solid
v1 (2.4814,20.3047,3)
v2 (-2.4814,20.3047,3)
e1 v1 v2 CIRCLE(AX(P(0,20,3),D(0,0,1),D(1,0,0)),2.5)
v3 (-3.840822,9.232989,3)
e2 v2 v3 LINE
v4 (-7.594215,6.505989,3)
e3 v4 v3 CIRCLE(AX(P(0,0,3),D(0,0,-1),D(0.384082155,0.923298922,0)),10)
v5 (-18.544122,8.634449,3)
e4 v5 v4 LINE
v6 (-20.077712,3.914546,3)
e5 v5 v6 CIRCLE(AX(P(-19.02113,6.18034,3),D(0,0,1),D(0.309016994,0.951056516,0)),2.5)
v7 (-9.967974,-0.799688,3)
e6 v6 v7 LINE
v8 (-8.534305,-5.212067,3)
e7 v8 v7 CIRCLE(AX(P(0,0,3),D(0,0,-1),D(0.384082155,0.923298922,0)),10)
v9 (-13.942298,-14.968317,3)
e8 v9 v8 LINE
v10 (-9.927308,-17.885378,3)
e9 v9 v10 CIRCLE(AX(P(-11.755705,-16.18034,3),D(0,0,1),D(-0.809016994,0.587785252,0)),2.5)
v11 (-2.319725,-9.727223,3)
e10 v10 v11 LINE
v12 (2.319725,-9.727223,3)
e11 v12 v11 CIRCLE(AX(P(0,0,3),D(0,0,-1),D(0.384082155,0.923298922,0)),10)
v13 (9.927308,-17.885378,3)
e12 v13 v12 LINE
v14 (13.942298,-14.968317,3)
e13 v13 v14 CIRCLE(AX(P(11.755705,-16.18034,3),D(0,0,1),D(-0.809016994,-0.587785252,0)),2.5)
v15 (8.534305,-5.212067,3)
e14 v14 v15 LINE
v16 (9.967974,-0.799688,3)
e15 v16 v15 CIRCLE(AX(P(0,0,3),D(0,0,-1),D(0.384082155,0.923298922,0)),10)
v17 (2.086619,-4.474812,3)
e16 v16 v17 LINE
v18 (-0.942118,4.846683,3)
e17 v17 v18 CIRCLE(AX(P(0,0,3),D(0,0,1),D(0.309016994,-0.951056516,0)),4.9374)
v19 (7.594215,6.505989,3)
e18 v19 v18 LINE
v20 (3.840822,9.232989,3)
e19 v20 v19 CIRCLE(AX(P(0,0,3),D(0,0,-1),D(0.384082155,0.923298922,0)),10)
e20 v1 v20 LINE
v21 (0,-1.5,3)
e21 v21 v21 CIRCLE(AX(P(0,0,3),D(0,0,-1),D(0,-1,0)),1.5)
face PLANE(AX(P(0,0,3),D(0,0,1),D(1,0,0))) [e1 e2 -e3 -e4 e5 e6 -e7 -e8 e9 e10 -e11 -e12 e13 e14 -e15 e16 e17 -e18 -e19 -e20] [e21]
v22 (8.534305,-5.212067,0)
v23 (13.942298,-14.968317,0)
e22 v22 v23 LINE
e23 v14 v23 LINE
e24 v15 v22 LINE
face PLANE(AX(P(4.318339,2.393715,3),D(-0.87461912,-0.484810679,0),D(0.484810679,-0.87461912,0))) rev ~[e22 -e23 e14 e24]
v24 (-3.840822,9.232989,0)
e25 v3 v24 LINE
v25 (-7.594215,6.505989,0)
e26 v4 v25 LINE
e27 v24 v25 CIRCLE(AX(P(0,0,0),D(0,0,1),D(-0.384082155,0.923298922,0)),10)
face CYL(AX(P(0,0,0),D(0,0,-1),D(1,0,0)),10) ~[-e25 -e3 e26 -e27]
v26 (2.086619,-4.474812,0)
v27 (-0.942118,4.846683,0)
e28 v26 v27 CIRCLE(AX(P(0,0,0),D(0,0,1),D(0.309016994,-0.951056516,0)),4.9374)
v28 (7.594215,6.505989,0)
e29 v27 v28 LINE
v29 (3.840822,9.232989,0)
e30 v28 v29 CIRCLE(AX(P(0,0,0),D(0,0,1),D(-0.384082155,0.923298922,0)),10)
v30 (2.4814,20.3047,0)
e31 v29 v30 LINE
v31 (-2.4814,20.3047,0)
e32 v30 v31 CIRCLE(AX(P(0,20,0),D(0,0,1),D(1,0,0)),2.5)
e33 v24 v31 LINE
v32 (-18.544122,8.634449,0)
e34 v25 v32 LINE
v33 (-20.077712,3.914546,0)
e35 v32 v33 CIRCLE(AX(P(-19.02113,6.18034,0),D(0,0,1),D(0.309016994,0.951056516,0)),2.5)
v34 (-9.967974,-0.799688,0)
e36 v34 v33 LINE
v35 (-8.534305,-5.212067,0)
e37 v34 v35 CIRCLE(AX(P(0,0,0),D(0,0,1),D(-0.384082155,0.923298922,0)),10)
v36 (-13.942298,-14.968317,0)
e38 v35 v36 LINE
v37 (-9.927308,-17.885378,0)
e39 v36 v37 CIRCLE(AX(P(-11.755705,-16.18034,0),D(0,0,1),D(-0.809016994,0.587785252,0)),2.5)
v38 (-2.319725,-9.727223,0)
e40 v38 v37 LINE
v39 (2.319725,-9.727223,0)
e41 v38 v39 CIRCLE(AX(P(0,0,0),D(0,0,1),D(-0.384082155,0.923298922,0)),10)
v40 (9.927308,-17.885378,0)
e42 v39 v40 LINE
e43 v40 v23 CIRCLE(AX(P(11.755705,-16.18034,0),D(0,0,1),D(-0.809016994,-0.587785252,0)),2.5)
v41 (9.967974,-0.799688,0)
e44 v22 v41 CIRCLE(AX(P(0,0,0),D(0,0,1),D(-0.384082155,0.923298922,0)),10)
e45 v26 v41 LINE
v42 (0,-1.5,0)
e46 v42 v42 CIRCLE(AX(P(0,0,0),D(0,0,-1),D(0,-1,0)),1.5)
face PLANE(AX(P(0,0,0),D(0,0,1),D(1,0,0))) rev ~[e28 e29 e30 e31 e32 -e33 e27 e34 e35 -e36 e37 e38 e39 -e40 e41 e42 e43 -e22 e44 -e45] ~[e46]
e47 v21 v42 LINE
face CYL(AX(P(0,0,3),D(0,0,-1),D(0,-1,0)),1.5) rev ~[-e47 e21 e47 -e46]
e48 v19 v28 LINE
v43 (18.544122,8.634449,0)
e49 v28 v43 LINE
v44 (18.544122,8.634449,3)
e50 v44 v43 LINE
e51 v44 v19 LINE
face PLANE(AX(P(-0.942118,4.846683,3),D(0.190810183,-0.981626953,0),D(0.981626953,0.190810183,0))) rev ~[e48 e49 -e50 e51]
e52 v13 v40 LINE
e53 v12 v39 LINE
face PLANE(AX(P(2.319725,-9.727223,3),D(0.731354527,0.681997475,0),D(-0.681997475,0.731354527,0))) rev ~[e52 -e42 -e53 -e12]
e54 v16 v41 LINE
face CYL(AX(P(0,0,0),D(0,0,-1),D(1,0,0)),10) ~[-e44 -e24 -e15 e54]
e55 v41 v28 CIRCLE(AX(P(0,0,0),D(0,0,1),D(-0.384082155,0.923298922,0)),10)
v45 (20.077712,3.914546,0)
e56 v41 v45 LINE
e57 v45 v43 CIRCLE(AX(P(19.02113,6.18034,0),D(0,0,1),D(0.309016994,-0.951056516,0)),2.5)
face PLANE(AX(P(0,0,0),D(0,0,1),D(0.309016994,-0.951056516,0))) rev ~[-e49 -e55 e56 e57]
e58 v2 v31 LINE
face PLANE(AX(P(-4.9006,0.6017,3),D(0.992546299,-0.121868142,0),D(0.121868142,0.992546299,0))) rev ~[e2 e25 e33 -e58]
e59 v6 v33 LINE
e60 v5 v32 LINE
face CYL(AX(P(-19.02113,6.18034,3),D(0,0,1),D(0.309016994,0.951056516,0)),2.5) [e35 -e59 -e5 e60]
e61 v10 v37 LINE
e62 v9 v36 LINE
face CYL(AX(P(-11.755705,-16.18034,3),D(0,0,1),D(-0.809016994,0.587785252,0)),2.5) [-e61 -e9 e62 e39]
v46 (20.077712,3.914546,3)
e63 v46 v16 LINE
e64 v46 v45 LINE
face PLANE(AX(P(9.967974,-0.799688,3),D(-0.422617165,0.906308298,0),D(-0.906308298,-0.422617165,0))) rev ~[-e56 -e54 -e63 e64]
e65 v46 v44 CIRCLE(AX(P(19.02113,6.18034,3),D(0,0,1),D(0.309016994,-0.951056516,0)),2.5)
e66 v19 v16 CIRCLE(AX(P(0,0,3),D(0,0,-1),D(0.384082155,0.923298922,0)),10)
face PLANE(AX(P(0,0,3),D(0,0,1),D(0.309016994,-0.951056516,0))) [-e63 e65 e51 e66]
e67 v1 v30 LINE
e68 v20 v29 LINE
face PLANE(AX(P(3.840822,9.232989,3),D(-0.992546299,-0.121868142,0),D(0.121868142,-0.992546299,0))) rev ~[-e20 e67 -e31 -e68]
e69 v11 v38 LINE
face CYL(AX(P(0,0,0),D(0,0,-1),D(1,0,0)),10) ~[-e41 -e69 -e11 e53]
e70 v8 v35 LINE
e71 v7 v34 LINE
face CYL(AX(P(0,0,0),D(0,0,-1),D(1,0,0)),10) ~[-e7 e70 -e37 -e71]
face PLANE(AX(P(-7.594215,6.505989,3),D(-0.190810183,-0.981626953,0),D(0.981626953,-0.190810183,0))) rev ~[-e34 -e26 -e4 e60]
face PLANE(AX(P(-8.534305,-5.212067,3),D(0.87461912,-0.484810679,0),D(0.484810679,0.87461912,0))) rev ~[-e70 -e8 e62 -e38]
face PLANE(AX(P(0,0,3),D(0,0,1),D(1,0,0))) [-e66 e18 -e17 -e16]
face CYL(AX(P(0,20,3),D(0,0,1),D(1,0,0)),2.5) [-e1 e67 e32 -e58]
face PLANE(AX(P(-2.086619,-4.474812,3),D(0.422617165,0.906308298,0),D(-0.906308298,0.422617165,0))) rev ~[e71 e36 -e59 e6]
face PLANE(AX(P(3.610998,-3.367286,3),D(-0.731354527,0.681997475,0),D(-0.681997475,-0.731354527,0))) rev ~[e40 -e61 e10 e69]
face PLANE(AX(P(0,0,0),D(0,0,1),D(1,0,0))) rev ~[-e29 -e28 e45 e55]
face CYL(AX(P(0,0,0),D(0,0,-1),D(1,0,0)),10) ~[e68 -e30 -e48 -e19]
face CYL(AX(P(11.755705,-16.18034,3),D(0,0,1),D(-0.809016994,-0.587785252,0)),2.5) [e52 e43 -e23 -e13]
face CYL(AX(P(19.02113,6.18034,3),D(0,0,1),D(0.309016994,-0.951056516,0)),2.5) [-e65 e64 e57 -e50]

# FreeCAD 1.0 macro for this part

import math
import FreeCAD as App
import Part
import Sketcher
from FreeCAD import Vector
Q = App.Units.Quantity

doc = App.newDocument("Part")
params = doc.addObject("Spreadsheet::Sheet", "Params")
for row, (alias, value) in enumerate([
    ("sketch1_diameter", "20 mm"),
    ("pad1_length", "3 mm"),
    ("sketch2_diameter", "3 mm"),
    ("hole_diameter", "3 mm"),
    ("sketch3_radius", "2.5 mm"),
    ("pad2_length", "3 mm"),
], start=1):
    params.set(f"A{row}", alias)
    params.set(f"B{row}", "=" + value)
    params.setAlias(f"B{row}", alias)

body = doc.addObject("PartDesign::Body", "Body")

# Sketch on XY plane
sketch1 = body.newObject("Sketcher::SketchObject", "Sketch")
sketch1.AttachmentSupport = (doc.getObject("XY_Plane"), [""])
sketch1.MapMode = "FlatFace"
sketch1.addGeometry(Part.Circle(Vector(0, 0, 0), Vector(0, 0, 1), 10), False)
sketch1.addConstraint([
    Sketcher.Constraint("Coincident", 0, 3, -1, 1),
    Sketcher.Constraint("Diameter", 0, 20.0),
])
sketch1.setExpression("Constraints[1]", "Params.sketch1_diameter")
pad1 = body.newObject("PartDesign::Pad", "Pad")
pad1.Profile = sketch1
pad1.setExpression("Length", "Params.pad1_length")

# Sketch on XY plane
sketch2 = body.newObject("Sketcher::SketchObject", "Sketch001")
sketch2.AttachmentSupport = (doc.getObject("XY_Plane"), [""])
sketch2.MapMode = "FlatFace"
sketch2.AttachmentOffset = App.Placement(Vector(0, 0, 3), App.Rotation())
sketch2.addGeometry(Part.Circle(Vector(0, 0, 0), Vector(0, 0, 1), 1.5), False)
sketch2.addConstraint([
    Sketcher.Constraint("Coincident", 0, 3, -1, 1),
    Sketcher.Constraint("Diameter", 0, 3.0),
])
sketch2.setExpression("Constraints[1]", "Params.sketch2_diameter")
doc.recompute()
hole = body.newObject("PartDesign::Hole", "Hole")
hole.Profile = sketch2
hole.ThreadType = "None"
hole.setExpression("Diameter", "Params.hole_diameter")
hole.DepthType = "ThroughAll"

# Sketch on XY plane
sketch3 = body.newObject("Sketcher::SketchObject", "Sketch002")
sketch3.AttachmentSupport = (doc.getObject("XY_Plane"), [""])
sketch3.MapMode = "FlatFace"
sketch3.AttachmentOffset = App.Placement(Vector(0, 0, 3), App.Rotation())
sketch3.addGeometry([
    Part.LineSegment(Vector(4.9, 0.6, 0), Vector(2.5, 20.3, 0)),
    Part.ArcOfCircle(Part.Circle(Vector(0, 20, 0), Vector(0, 0, 1), 2.5), math.radians(7), math.radians(173)),
    Part.LineSegment(Vector(-2.5, 20.3, 0), Vector(-4.9, 0.6, 0)),
    Part.ArcOfCircle(Part.Circle(Vector(0, 0, 0), Vector(0, 0, 1), 4.9), math.radians(7), math.radians(173)),
], False)
sketch3.addConstraint([
    Sketcher.Constraint("Tangent", 0, 2, 1, 1),
    Sketcher.Constraint("Tangent", 1, 2, 2, 1),
    Sketcher.Constraint("Tangent", 2, 2, 3, 2),
    Sketcher.Constraint("Tangent", 3, 1, 0, 1),
    Sketcher.Constraint("Coincident", 3, 3, -1, 1),
    Sketcher.Constraint("PointOnObject", 1, 3, -2),
    Sketcher.Constraint("Radius", 1, 2.5),
    Sketcher.Constraint("DistanceY", -1, 1, 1, 3, 20.0),
    Sketcher.Constraint("Angle", 0, Q("97 deg")),
])
sketch3.setExpression("Constraints[6]", "Params.sketch3_radius")
pad2 = body.newObject("PartDesign::Pad", "Pad001")
pad2.Profile = sketch3
pad2.setExpression("Length", "Params.pad2_length")
pad2.Reversed = True
doc.recompute()

polarpattern = body.newObject("PartDesign::PolarPattern", "PolarPattern")
polarpattern.Originals = [pad2]
polarpattern.Axis = (doc.getObject("Z_Axis"), [""])
polarpattern.Angle = 360
polarpattern.Occurrences = 5
body.Tip = polarpattern

doc.recompute()
